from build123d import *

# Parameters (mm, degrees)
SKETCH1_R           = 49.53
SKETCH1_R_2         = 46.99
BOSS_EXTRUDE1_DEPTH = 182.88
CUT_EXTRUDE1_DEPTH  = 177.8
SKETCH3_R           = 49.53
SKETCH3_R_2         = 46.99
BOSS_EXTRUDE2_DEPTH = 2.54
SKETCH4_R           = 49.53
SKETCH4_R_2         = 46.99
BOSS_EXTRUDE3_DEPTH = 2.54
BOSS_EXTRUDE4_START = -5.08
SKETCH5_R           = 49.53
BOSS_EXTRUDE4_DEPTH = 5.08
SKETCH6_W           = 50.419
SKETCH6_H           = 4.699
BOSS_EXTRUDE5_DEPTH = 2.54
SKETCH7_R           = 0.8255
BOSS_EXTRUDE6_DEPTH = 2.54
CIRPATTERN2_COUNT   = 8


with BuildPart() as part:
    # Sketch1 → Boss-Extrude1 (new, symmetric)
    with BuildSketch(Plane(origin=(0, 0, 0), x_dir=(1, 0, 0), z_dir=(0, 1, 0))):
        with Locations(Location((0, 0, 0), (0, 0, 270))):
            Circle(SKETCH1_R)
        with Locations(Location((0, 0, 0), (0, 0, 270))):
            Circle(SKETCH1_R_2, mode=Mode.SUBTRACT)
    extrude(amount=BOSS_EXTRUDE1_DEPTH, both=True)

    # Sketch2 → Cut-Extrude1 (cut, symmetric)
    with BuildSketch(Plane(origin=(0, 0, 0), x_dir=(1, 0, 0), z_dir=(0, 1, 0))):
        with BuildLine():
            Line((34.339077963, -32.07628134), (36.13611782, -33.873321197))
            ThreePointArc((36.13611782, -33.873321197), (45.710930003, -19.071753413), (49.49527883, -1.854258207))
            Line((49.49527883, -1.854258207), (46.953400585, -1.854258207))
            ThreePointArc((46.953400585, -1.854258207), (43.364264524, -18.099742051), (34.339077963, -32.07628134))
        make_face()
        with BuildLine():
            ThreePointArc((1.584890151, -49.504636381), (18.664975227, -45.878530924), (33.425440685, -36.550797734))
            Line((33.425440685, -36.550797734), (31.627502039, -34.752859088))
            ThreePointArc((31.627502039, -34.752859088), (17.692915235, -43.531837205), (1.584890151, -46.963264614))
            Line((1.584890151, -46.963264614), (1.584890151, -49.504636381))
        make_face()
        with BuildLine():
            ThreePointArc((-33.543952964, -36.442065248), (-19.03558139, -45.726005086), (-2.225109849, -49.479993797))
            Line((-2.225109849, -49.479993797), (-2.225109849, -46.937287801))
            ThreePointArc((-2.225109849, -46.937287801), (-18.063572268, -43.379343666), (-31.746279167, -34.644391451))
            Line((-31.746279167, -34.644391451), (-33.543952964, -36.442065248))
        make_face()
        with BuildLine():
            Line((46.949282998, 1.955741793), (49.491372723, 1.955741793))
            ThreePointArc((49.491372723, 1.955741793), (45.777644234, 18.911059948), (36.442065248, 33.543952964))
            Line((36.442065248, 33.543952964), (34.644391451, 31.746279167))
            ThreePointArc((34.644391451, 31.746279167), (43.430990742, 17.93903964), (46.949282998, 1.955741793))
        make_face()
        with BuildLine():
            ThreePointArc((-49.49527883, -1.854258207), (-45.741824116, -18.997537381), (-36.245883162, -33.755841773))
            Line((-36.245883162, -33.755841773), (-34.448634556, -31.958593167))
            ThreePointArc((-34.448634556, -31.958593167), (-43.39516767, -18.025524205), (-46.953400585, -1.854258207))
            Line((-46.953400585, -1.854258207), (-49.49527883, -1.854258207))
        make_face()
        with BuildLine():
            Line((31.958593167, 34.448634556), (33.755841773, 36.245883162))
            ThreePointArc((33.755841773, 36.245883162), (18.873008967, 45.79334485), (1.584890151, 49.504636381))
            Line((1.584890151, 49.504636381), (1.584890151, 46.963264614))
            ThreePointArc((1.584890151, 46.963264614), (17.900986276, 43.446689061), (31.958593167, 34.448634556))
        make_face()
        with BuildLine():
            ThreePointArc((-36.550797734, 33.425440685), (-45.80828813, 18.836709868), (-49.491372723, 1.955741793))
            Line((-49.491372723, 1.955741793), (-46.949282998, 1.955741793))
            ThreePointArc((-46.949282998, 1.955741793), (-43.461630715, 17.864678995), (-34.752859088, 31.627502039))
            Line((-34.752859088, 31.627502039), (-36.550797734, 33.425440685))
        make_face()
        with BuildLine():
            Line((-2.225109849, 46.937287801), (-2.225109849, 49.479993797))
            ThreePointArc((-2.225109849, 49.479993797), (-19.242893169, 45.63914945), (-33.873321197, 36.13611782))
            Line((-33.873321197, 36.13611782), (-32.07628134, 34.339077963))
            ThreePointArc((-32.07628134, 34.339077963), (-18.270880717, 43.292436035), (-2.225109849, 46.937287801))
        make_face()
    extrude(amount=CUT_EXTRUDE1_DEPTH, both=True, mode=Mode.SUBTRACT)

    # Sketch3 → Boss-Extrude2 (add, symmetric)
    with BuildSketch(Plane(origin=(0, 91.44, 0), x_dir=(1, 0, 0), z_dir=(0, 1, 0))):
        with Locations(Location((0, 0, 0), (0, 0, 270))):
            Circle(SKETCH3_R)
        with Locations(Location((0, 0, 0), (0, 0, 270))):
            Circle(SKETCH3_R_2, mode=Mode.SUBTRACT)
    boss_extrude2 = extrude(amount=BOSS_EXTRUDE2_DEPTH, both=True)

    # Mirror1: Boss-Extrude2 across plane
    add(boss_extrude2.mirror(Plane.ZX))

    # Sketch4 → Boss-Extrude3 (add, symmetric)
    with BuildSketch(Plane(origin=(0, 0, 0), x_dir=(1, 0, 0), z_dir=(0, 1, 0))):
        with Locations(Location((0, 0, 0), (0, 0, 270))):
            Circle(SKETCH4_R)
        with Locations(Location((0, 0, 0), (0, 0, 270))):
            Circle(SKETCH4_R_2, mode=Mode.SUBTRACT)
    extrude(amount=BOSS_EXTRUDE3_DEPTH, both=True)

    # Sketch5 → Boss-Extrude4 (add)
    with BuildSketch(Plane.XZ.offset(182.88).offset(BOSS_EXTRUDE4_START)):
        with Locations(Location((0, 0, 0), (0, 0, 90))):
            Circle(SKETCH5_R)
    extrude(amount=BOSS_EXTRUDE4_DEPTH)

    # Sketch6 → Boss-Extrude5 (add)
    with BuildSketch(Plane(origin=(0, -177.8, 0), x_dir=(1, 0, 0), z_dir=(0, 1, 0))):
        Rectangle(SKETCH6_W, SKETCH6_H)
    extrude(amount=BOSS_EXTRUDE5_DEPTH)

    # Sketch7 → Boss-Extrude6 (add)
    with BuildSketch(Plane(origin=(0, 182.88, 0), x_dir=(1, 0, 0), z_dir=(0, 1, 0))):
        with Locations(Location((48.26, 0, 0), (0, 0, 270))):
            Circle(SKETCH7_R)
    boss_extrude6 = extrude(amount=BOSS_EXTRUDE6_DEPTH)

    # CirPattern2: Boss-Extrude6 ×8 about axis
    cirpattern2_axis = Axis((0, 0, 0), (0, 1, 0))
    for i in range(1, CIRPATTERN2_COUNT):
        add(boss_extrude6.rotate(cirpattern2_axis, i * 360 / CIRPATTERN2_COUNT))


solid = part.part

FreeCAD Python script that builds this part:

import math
import FreeCAD as App
import Part
import Sketcher
from FreeCAD import Vector
Q = App.Units.Quantity


def add_polygon(sketch, points):
    """Adds a closed chain of lines whose ends are joined by coincident constraints."""
    first, n = sketch.GeometryCount, len(points)
    for a, b in zip(points, points[1:] + points[:1]):
        sketch.addGeometry(Part.LineSegment(App.Vector(*a, 0), App.Vector(*b, 0)), False)
    for i in range(n):
        sketch.addConstraint(Sketcher.Constraint("Coincident", first + i, 2, first + (i + 1) % n, 1))

doc = App.newDocument("Part")
body = doc.addObject("PartDesign::Body", "Body")

# Sketch on XZ plane
sketch1 = body.newObject("Sketcher::SketchObject", "Sketch")
sketch1.AttachmentSupport = (doc.getObject("XZ_Plane"), [""])
sketch1.MapMode = "FlatFace"
sketch1.addGeometry(Part.Circle(Vector(0, 0, 0), Vector(0, 0, 1), 49.53), False)
sketch1.addGeometry(Part.Circle(Vector(0, 0, 0), Vector(0, 0, 1), 46.99), False)
sketch1.addConstraint(Sketcher.Constraint("Coincident", 0, 3, -1, 1))
sketch1.addConstraint(Sketcher.Constraint("Coincident", 1, 3, -1, 1))
sketch1.addConstraint(Sketcher.Constraint("Diameter", 0, Q("3.9 in")))
sketch1.addConstraint(Sketcher.Constraint("Diameter", 1, Q("3.7 in")))
pad1 = body.newObject("PartDesign::Pad", "Pad")
pad1.Profile = sketch1
pad1.Length = Q("14.4 in")
pad1.Midplane = True

# Sketch on XZ plane
sketch2 = body.newObject("Sketcher::SketchObject", "Sketch001")
sketch2.AttachmentSupport = (doc.getObject("XZ_Plane"), [""])
sketch2.MapMode = "FlatFace"
sketch2.addGeometry(Part.LineSegment(Vector(34.339078, 32.076281, 0), Vector(36.136118, 33.873321, 0)), False)
sketch2.addGeometry(Part.ArcOfCircle(Part.Circle(Vector(0, 0, 0), Vector(0, 0, 1), 49.53), math.radians(2.145488), math.radians(43.14877)), False)
sketch2.addGeometry(Part.LineSegment(Vector(49.495279, 1.854258, 0), Vector(46.953401, 1.854258, 0)), False)
sketch2.addGeometry(Part.ArcOfCircle(Part.Circle(Vector(0, 0, 0), Vector(0, 0, 1), 46.99), math.radians(2.261519), math.radians(43.048666)), False)
sketch2.addGeometry(Part.ArcOfCircle(Part.Circle(Vector(0, 0, 0), Vector(0, 0, 1), 49.53), math.radians(47.557309), math.radians(88.166303)), False)
sketch2.addGeometry(Part.LineSegment(Vector(33.425441, 36.550798, 0), Vector(31.627502, 34.752859, 0)), False)
sketch2.addGeometry(Part.ArcOfCircle(Part.Circle(Vector(0, 0, 0), Vector(0, 0, 1), 46.99), math.radians(47.695641), math.radians(88.067147)), False)
sketch2.addGeometry(Part.LineSegment(Vector(1.58489, 46.963265, 0), Vector(1.58489, 49.504636, 0)), False)
sketch2.addGeometry(Part.ArcOfCircle(Part.Circle(Vector(0, 0, 0), Vector(0, 0, 1), 49.53), math.radians(92.57485), math.radians(132.628744)), False)
sketch2.addGeometry(Part.LineSegment(Vector(-2.22511, 49.479994, 0), Vector(-2.22511, 46.937288, 0)), False)
sketch2.addGeometry(Part.ArcOfCircle(Part.Circle(Vector(0, 0, 0), Vector(0, 0, 1), 46.99), math.radians(92.714133), math.radians(132.500488)), False)
sketch2.addGeometry(Part.LineSegment(Vector(-31.746279, 34.644391, 0), Vector(-33.543953, 36.442065, 0)), False)
sketch2.addGeometry(Part.LineSegment(Vector(46.949283, -1.955742, 0), Vector(49.491373, -1.955742, 0)), False)
sketch2.addGeometry(Part.ArcOfCircle(Part.Circle(Vector(0, 0, 0), Vector(0, 0, 1), 49.53), math.radians(-42.628744), math.radians(-2.26297)), False)
sketch2.addGeometry(Part.LineSegment(Vector(36.442065, -33.543953, 0), Vector(34.644391, -31.746279, 0)), False)
sketch2.addGeometry(Part.ArcOfCircle(Part.Circle(Vector(0, 0, 0), Vector(0, 0, 1), 46.99), math.radians(-42.500488), math.radians(-2.385361)), False)
sketch2.addGeometry(Part.ArcOfCircle(Part.Circle(Vector(0, 0, 0), Vector(0, 0, 1), 49.53), math.radians(137.037217), math.radians(177.854512)), False)
sketch2.addGeometry(Part.LineSegment(Vector(-36.245883, 33.755842, 0), Vector(-34.448635, 31.958593, 0)), False)
sketch2.addGeometry(Part.ArcOfCircle(Part.Circle(Vector(0, 0, 0), Vector(0, 0, 1), 46.99), math.radians(137.147388), math.radians(177.738481)), False)
sketch2.addGeometry(Part.LineSegment(Vector(-46.953401, 1.854258, 0), Vector(-49.495279, 1.854258, 0)), False)
sketch2.addGeometry(Part.LineSegment(Vector(31.958593, -34.448635, 0), Vector(33.755842, -36.245883, 0)), False)
sketch2.addGeometry(Part.ArcOfCircle(Part.Circle(Vector(0, 0, 0), Vector(0, 0, 1), 49.53), math.radians(-88.166303), math.radians(-47.037217)), False)
sketch2.addGeometry(Part.LineSegment(Vector(1.58489, -49.504636, 0), Vector(1.58489, -46.963265, 0)), False)
sketch2.addGeometry(Part.ArcOfCircle(Part.Circle(Vector(0, 0, 0), Vector(0, 0, 1), 46.99), math.radians(-88.067147), math.radians(-47.147388)), False)
sketch2.addGeometry(Part.ArcOfCircle(Part.Circle(Vector(0, 0, 0), Vector(0, 0, 1), 49.53), math.radians(-177.73703), math.radians(-137.557309)), False)
sketch2.addGeometry(Part.LineSegment(Vector(-49.491373, -1.955742, 0), Vector(-46.949283, -1.955742, 0)), False)
sketch2.addGeometry(Part.ArcOfCircle(Part.Circle(Vector(0, 0, 0), Vector(0, 0, 1), 46.99), math.radians(-177.614639), math.radians(-137.695641)), False)
sketch2.addGeometry(Part.LineSegment(Vector(-34.752859, -31.627502, 0), Vector(-36.550798, -33.425441, 0)), False)
sketch2.addGeometry(Part.LineSegment(Vector(-2.22511, -46.937288, 0), Vector(-2.22511, -49.479994, 0)), False)
sketch2.addGeometry(Part.ArcOfCircle(Part.Circle(Vector(0, 0, 0), Vector(0, 0, 1), 49.53), math.radians(-133.14877), math.radians(-92.57485)), False)
sketch2.addGeometry(Part.LineSegment(Vector(-33.873321, -36.136118, 0), Vector(-32.076281, -34.339078, 0)), False)
sketch2.addGeometry(Part.ArcOfCircle(Part.Circle(Vector(0, 0, 0), Vector(0, 0, 1), 46.99), math.radians(-133.048666), math.radians(-92.714133)), False)
sketch2.addConstraint(Sketcher.Constraint("Coincident", 0, 2, 1, 2))
sketch2.addConstraint(Sketcher.Constraint("Coincident", 1, 1, 2, 1))
sketch2.addConstraint(Sketcher.Constraint("Coincident", 2, 2, 3, 1))
sketch2.addConstraint(Sketcher.Constraint("Coincident", 3, 2, 0, 1))
sketch2.addConstraint(Sketcher.Constraint("Coincident", 4, 1, 5, 1))
sketch2.addConstraint(Sketcher.Constraint("Coincident", 5, 2, 6, 1))
sketch2.addConstraint(Sketcher.Constraint("Coincident", 6, 2, 7, 1))
sketch2.addConstraint(Sketcher.Constraint("Coincident", 7, 2, 4, 2))
sketch2.addConstraint(Sketcher.Constraint("Coincident", 8, 1, 9, 1))
sketch2.addConstraint(Sketcher.Constraint("Coincident", 9, 2, 10, 1))
sketch2.addConstraint(Sketcher.Constraint("Coincident", 10, 2, 11, 1))
sketch2.addConstraint(Sketcher.Constraint("Coincident", 11, 2, 8, 2))
sketch2.addConstraint(Sketcher.Constraint("Coincident", 12, 2, 13, 2))
sketch2.addConstraint(Sketcher.Constraint("Coincident", 13, 1, 14, 1))
sketch2.addConstraint(Sketcher.Constraint("Coincident", 14, 2, 15, 1))
sketch2.addConstraint(Sketcher.Constraint("Coincident", 15, 2, 12, 1))
sketch2.addConstraint(Sketcher.Constraint("Coincident", 16, 1, 17, 1))
sketch2.addConstraint(Sketcher.Constraint("Coincident", 17, 2, 18, 1))
sketch2.addConstraint(Sketcher.Constraint("Coincident", 18, 2, 19, 1))
sketch2.addConstraint(Sketcher.Constraint("Coincident", 19, 2, 16, 2))
sketch2.addConstraint(Sketcher.Constraint("Coincident", 20, 2, 21, 2))
sketch2.addConstraint(Sketcher.Constraint("Coincident", 21, 1, 22, 1))
sketch2.addConstraint(Sketcher.Constraint("Coincident", 22, 2, 23, 1))
sketch2.addConstraint(Sketcher.Constraint("Coincident", 23, 2, 20, 1))
sketch2.addConstraint(Sketcher.Constraint("Coincident", 24, 1, 25, 1))
sketch2.addConstraint(Sketcher.Constraint("Coincident", 25, 2, 26, 1))
sketch2.addConstraint(Sketcher.Constraint("Coincident", 26, 2, 27, 1))
sketch2.addConstraint(Sketcher.Constraint("Coincident", 27, 2, 24, 2))
sketch2.addConstraint(Sketcher.Constraint("Coincident", 28, 2, 29, 2))
sketch2.addConstraint(Sketcher.Constraint("Coincident", 29, 1, 30, 1))
sketch2.addConstraint(Sketcher.Constraint("Coincident", 30, 2, 31, 1))
sketch2.addConstraint(Sketcher.Constraint("Coincident", 31, 2, 28, 1))
sketch2.addConstraint(Sketcher.Constraint("Horizontal", 2))
sketch2.addConstraint(Sketcher.Constraint("Vertical", 7))
sketch2.addConstraint(Sketcher.Constraint("Vertical", 9))
sketch2.addConstraint(Sketcher.Constraint("Horizontal", 12))
sketch2.addConstraint(Sketcher.Constraint("Horizontal", 19))
sketch2.addConstraint(Sketcher.Constraint("Vertical", 22))
sketch2.addConstraint(Sketcher.Constraint("Horizontal", 25))
sketch2.addConstraint(Sketcher.Constraint("Vertical", 28))
sketch2.addConstraint(Sketcher.Constraint("Coincident", 1, 3, -1, 1))
sketch2.addConstraint(Sketcher.Constraint("Coincident", 3, 3, -1, 1))
sketch2.addConstraint(Sketcher.Constraint("Coincident", 4, 3, -1, 1))
sketch2.addConstraint(Sketcher.Constraint("Coincident", 6, 3, -1, 1))
sketch2.addConstraint(Sketcher.Constraint("Coincident", 8, 3, -1, 1))
sketch2.addConstraint(Sketcher.Constraint("Coincident", 10, 3, -1, 1))
sketch2.addConstraint(Sketcher.Constraint("Coincident", 13, 3, -1, 1))
sketch2.addConstraint(Sketcher.Constraint("Coincident", 15, 3, -1, 1))
sketch2.addConstraint(Sketcher.Constraint("Coincident", 16, 3, -1, 1))
sketch2.addConstraint(Sketcher.Constraint("Coincident", 18, 3, -1, 1))
sketch2.addConstraint(Sketcher.Constraint("Coincident", 21, 3, -1, 1))
sketch2.addConstraint(Sketcher.Constraint("Coincident", 23, 3, -1, 1))
sketch2.addConstraint(Sketcher.Constraint("Coincident", 24, 3, -1, 1))
sketch2.addConstraint(Sketcher.Constraint("Coincident", 26, 3, -1, 1))
sketch2.addConstraint(Sketcher.Constraint("Coincident", 29, 3, -1, 1))
sketch2.addConstraint(Sketcher.Constraint("Coincident", 31, 3, -1, 1))
sketch2.addConstraint(Sketcher.Constraint("Equal", 1, 4))
sketch2.addConstraint(Sketcher.Constraint("Equal", 3, 6))
sketch2.addConstraint(Sketcher.Constraint("Equal", 4, 8))
sketch2.addConstraint(Sketcher.Constraint("Equal", 6, 10))
sketch2.addConstraint(Sketcher.Constraint("Equal", 8, 13))
sketch2.addConstraint(Sketcher.Constraint("Equal", 10, 15))
sketch2.addConstraint(Sketcher.Constraint("Equal", 13, 16))
sketch2.addConstraint(Sketcher.Constraint("Equal", 15, 18))
sketch2.addConstraint(Sketcher.Constraint("Equal", 16, 21))
sketch2.addConstraint(Sketcher.Constraint("Equal", 18, 23))
sketch2.addConstraint(Sketcher.Constraint("Equal", 21, 24))
sketch2.addConstraint(Sketcher.Constraint("Equal", 23, 26))
sketch2.addConstraint(Sketcher.Constraint("Equal", 24, 29))
sketch2.addConstraint(Sketcher.Constraint("Equal", 26, 31))
sketch2.addConstraint(Sketcher.Constraint("Parallel", 0, 5))
sketch2.addConstraint(Sketcher.Constraint("Perpendicular", 5, 11))
sketch2.addConstraint(Sketcher.Constraint("Parallel", 11, 14))
sketch2.addConstraint(Sketcher.Constraint("Parallel", 14, 17))
sketch2.addConstraint(Sketcher.Constraint("Parallel", 17, 20))
sketch2.addConstraint(Sketcher.Constraint("Perpendicular", 20, 27))
sketch2.addConstraint(Sketcher.Constraint("Parallel", 27, 30))
sketch2.addConstraint(Sketcher.Constraint("Horizontal", 2, 2, 18, 2))
sketch2.addConstraint(Sketcher.Constraint("Horizontal", 15, 2, 24, 1))
sketch2.addConstraint(Sketcher.Constraint("Vertical", 7, 2, 21, 1))
sketch2.addConstraint(Sketcher.Constraint("Vertical", 9, 2, 28, 2))
sketch2.addConstraint(Sketcher.Constraint("Equal", 11, 14))
sketch2.addConstraint(Sketcher.Constraint("Radius", 1, Q("1.95 in")))
sketch2.addConstraint(Sketcher.Constraint("Radius", 3, Q("1.85 in")))
sketch2.addConstraint(Sketcher.Constraint("Angle", 0, Q("45 deg")))
sketch2.addConstraint(Sketcher.Constraint("DistanceX", 8, 1, 7, 2, Q("0.15 in")))
sketch2.addConstraint(Sketcher.Constraint("DistanceY", 12, 2, 1, 1, Q("0.15 in")))
sketch2.addConstraint(Sketcher.Constraint("DistanceX", -1, 1, 2, 2, Q("46.953401 mm")))
sketch2.addConstraint(Sketcher.Constraint("DistanceX", 3, 2, 1, 1, Q("15.156201 mm")))
sketch2.addConstraint(Sketcher.Constraint("DistanceX", 5, 2, 2, 2, Q("15.325899 mm")))
sketch2.addConstraint(Sketcher.Constraint("DistanceY", 11, 2, 6, 2, Q("10.521199 mm")))
sketch2.addConstraint(Sketcher.Constraint("DistanceY", 17, 2, 10, 2, Q("2.685798 mm")))
sketch2.addConstraint(Sketcher.Constraint("DistanceY", 17, 2, 8, 1, Q("17.521401 mm")))
sketch2.addConstraint(Sketcher.Constraint("DistanceX", 23, 2, 14, 2, Q("2.685798 mm")))
sketch2.addConstraint(Sketcher.Constraint("DistanceY", 27, 2, 25, 2, Q("31.469699 mm")))
sketch2.addConstraint(Sketcher.Constraint("DistanceX", 25, 2, 30, 2, Q("14.873002 mm")))
pocket1 = body.newObject("PartDesign::Pocket", "Pocket")
pocket1.Profile = sketch2
pocket1.Length = Q("14 in")
pocket1.Midplane = True

# Sketch on XZ plane
sketch3 = body.newObject("Sketcher::SketchObject", "Sketch002")
sketch3.AttachmentSupport = (doc.getObject("XZ_Plane"), [""])
sketch3.MapMode = "FlatFace"
sketch3.AttachmentOffset = App.Placement(Vector(0, 0, -3.6 * 25.4), App.Rotation())
sketch3.addGeometry(Part.Circle(Vector(0, 0, 0), Vector(0, 0, 1), 49.53), False)
sketch3.addGeometry(Part.Circle(Vector(0, 0, 0), Vector(0, 0, 1), 46.99), False)
sketch3.addConstraint(Sketcher.Constraint("Coincident", 0, 3, -1, 1))
sketch3.addConstraint(Sketcher.Constraint("Coincident", 1, 3, -1, 1))
sketch3.addConstraint(Sketcher.Constraint("Diameter", 0, Q("3.9 in")))
sketch3.addConstraint(Sketcher.Constraint("Diameter", 1, Q("3.7 in")))
pad2 = body.newObject("PartDesign::Pad", "Pad001")
pad2.Profile = sketch3
pad2.Length = Q("0.2 in")
pad2.Midplane = True
doc.recompute()

mirrored = body.newObject("PartDesign::Mirrored", "Mirrored")
mirrored.Originals = [pad2]
mirrored.MirrorPlane = (doc.getObject("XZ_Plane"), [""])
body.Tip = mirrored

# Sketch on XZ plane
sketch4 = body.newObject("Sketcher::SketchObject", "Sketch003")
sketch4.AttachmentSupport = (doc.getObject("XZ_Plane"), [""])
sketch4.MapMode = "FlatFace"
sketch4.addGeometry(Part.Circle(Vector(0, 0, 0), Vector(0, 0, 1), 49.53), False)
sketch4.addGeometry(Part.Circle(Vector(0, 0, 0), Vector(0, 0, 1), 46.99), False)
sketch4.addConstraint(Sketcher.Constraint("Coincident", 0, 3, -1, 1))
sketch4.addConstraint(Sketcher.Constraint("Coincident", 1, 3, -1, 1))
sketch4.addConstraint(Sketcher.Constraint("Diameter", 0, Q("3.9 in")))
sketch4.addConstraint(Sketcher.Constraint("Diameter", 1, Q("3.7 in")))
pad3 = body.newObject("PartDesign::Pad", "Pad002")
pad3.Profile = sketch4
pad3.Length = Q("0.2 in")
pad3.Midplane = True

# Sketch on XZ plane
sketch5 = body.newObject("Sketcher::SketchObject", "Sketch004")
sketch5.AttachmentSupport = (doc.getObject("XZ_Plane"), [""])
sketch5.MapMode = "FlatFace"
sketch5.AttachmentOffset = App.Placement(Vector(0, 0, 7 * 25.4), App.Rotation())
sketch5.addGeometry(Part.Circle(Vector(0, 0, 0), Vector(0, 0, 1), 49.53), False)
sketch5.addConstraint(Sketcher.Constraint("Coincident", 0, 3, -1, 1))
sketch5.addConstraint(Sketcher.Constraint("Diameter", 0, Q("3.9 in")))
pad4 = body.newObject("PartDesign::Pad", "Pad003")
pad4.Profile = sketch5
pad4.Length = Q("0.2 in")

# Sketch on XZ plane
sketch6 = body.newObject("Sketcher::SketchObject", "Sketch005")
sketch6.AttachmentSupport = (doc.getObject("XZ_Plane"), [""])
sketch6.MapMode = "FlatFace"
sketch6.AttachmentOffset = App.Placement(Vector(0, 0, 7 * 25.4), App.Rotation())
add_polygon(sketch6, [(-25.2095, -2.3495), (-25.2095, 2.3495), (25.2095, 2.3495), (25.2095, -2.3495)])  # lines 0-3
sketch6.addConstraint(Sketcher.Constraint("Vertical", 0))
sketch6.addConstraint(Sketcher.Constraint("Horizontal", 1))
sketch6.addConstraint(Sketcher.Constraint("Vertical", 2))
sketch6.addConstraint(Sketcher.Constraint("Horizontal", 3))
sketch6.addConstraint(Sketcher.Constraint("Symmetric", 0, 2, 2, 2, -1, 1))
sketch6.addConstraint(Sketcher.Constraint("DistanceX", 1, 1, 1, 2, Q("1.985 in")))
sketch6.addConstraint(Sketcher.Constraint("DistanceY", 0, 1, 0, 2, Q("0.185 in")))
pad5 = body.newObject("PartDesign::Pad", "Pad004")
pad5.Profile = sketch6
pad5.Length = Q("0.1 in")
pad5.Reversed = True

# Sketch on XZ plane
sketch7 = body.newObject("Sketcher::SketchObject", "Sketch006")
sketch7.AttachmentSupport = (doc.getObject("XZ_Plane"), [""])
sketch7.MapMode = "FlatFace"
sketch7.AttachmentOffset = App.Placement(Vector(0, 0, -7.2 * 25.4), App.Rotation())
sketch7.addGeometry(Part.Circle(Vector(48.26, 0, 0), Vector(0, 0, 1), 0.8255), False)
sketch7.addConstraint(Sketcher.Constraint("PointOnObject", 0, 3, -1))
sketch7.addConstraint(Sketcher.Constraint("Diameter", 0, Q("0.065 in")))
sketch7.addConstraint(Sketcher.Constraint("DistanceX", -1, 1, 0, 3, Q("1.9 in")))
pad6 = body.newObject("PartDesign::Pad", "Pad005")
pad6.Profile = sketch7
pad6.Length = Q("0.1 in")
pad6.Reversed = True
doc.recompute()

polarpattern = body.newObject("PartDesign::PolarPattern", "PolarPattern")
polarpattern.Originals = [pad6]
polarpattern.Axis = (doc.getObject("Y_Axis"), [""])
polarpattern.Angle = 360
polarpattern.Occurrences = 8
body.Tip = polarpattern

doc.recompute()
